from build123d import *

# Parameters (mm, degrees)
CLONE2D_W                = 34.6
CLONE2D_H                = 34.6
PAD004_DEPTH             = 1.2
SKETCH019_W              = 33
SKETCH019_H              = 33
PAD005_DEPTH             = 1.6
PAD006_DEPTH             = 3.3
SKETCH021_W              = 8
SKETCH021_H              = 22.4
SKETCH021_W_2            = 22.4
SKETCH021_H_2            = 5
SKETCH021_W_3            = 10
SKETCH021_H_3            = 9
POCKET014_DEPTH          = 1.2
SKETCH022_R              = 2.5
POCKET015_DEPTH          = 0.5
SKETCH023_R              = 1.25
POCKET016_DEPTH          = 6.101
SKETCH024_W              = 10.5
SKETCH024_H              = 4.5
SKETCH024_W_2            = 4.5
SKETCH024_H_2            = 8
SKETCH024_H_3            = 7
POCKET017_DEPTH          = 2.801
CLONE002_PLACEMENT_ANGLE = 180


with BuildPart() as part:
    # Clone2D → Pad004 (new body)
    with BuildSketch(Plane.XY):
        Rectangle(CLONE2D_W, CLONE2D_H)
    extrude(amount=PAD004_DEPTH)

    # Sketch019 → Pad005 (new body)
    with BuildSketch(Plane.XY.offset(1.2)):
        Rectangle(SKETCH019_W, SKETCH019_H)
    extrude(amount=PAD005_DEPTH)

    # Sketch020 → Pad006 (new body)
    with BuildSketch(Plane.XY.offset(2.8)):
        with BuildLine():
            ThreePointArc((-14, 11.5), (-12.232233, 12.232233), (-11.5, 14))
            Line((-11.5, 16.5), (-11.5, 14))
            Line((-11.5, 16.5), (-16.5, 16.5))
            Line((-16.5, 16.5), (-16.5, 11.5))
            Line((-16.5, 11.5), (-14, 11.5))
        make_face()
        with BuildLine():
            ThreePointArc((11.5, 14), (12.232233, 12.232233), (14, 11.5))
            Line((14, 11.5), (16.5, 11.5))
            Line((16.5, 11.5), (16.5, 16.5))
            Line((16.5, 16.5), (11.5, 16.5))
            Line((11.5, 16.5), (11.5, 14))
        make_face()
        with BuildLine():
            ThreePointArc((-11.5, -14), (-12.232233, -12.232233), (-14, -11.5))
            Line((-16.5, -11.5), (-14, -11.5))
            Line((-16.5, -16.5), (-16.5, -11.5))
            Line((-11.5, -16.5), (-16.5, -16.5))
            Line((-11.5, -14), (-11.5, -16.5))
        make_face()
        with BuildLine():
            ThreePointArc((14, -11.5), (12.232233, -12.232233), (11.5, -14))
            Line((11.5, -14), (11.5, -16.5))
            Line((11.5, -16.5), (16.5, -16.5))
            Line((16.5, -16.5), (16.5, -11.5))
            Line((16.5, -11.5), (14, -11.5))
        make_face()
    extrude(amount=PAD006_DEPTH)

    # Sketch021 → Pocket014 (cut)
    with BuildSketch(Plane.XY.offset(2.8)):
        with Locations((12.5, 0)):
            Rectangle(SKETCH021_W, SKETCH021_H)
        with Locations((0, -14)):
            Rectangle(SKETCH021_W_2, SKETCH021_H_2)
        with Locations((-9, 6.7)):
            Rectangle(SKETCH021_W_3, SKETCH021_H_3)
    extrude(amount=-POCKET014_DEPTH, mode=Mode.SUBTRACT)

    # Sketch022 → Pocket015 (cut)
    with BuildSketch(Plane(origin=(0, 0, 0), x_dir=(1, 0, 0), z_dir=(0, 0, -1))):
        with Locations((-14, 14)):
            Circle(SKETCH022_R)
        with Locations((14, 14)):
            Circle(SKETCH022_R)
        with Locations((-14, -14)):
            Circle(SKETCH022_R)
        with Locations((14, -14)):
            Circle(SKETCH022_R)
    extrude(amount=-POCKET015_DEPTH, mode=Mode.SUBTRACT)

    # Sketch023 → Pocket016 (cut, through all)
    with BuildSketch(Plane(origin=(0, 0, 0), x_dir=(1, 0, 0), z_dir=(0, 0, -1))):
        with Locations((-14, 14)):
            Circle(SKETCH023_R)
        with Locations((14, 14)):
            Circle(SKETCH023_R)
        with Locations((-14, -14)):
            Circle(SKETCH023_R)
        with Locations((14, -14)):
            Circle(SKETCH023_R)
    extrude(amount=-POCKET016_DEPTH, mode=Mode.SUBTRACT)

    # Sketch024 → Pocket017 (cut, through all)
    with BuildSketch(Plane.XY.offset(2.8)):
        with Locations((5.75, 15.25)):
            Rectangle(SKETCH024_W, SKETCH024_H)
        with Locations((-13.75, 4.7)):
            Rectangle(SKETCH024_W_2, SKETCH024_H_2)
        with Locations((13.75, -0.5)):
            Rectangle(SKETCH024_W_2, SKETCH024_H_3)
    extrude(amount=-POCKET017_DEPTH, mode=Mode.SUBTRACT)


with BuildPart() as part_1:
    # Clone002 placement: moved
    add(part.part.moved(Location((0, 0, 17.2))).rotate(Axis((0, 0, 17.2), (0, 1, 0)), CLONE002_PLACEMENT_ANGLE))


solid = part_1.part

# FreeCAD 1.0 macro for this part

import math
import FreeCAD as App
import Part
import Sketcher

V = App.Vector
Q = App.Units.Quantity


def add_polygon(sketch, points):
    """Adds a closed chain of lines whose ends are joined by coincident constraints."""
    first, n = sketch.GeometryCount, len(points)
    for a, b in zip(points, points[1:] + points[:1]):
        sketch.addGeometry(Part.LineSegment(App.Vector(*a, 0), App.Vector(*b, 0)), False)
    for i in range(n):
        sketch.addConstraint(Sketcher.Constraint("Coincident", first + i, 2, first + (i + 1) % n, 1))

doc = App.newDocument("Part")
body = doc.addObject("PartDesign::Body", "Body")

# Sketch on XY plane
sketch1 = body.newObject("Sketcher::SketchObject", "Sketch")
sketch1.AttachmentSupport = (doc.getObject("XY_Plane"), [""])
sketch1.MapMode = "FlatFace"
add_polygon(sketch1, [(-17, 17), (-17, -17), (17, -17), (17, 17)])  # lines 0-3
sketch1.addConstraint([
    Sketcher.Constraint("Vertical", 0),
    Sketcher.Constraint("Horizontal", 1),
    Sketcher.Constraint("Vertical", 2),
    Sketcher.Constraint("Horizontal", 3),
    Sketcher.Constraint("Symmetric", 0, 2, 2, 2, -1, 1),
    Sketcher.Constraint("Equal", 3, 0),
    Sketcher.Constraint("DistanceX", 1, 1, 1, 2, Q("34.6 mm")),
])
pad1 = body.newObject("PartDesign::Pad", "Pad")
pad1.Profile = sketch1
pad1.Length = 1.2

# Sketch on XY plane
sketch2 = body.newObject("Sketcher::SketchObject", "Sketch001")
sketch2.AttachmentSupport = (doc.getObject("XY_Plane"), [""])
sketch2.MapMode = "FlatFace"
sketch2.AttachmentOffset = App.Placement(V(0, 0, 1.2), App.Rotation())
add_polygon(sketch2, [(-16, 16), (-16, -16), (16, -16), (16, 16)])  # lines 0-3
sketch2.addConstraint([
    Sketcher.Constraint("Vertical", 0),
    Sketcher.Constraint("Horizontal", 1),
    Sketcher.Constraint("Vertical", 2),
    Sketcher.Constraint("Horizontal", 3),
    Sketcher.Constraint("Symmetric", 0, 2, 2, 2, -1, 1),
    Sketcher.Constraint("Equal", 3, 0),
    Sketcher.Constraint("DistanceX", 1, 1, 1, 2, Q("33 mm")),
])
pad2 = body.newObject("PartDesign::Pad", "Pad001")
pad2.Profile = sketch2
pad2.Length = 1.6

# Sketch on XY plane
sketch3 = body.newObject("Sketcher::SketchObject", "Sketch002")
sketch3.AttachmentSupport = (doc.getObject("XY_Plane"), [""])
sketch3.MapMode = "FlatFace"
sketch3.AttachmentOffset = App.Placement(V(0, 0, 2.8), App.Rotation())
sketch3.addGeometry([
    Part.ArcOfCircle(Part.Circle(V(-14, 14, 0), V(0, 0, 1), 2.5), math.radians(-90), math.radians(0)),  # 0
    Part.LineSegment(V(-11.5, 14, 0), V(-11.5, 16.5, 0)),  # 1
    Part.LineSegment(V(-11.5, 16.5, 0), V(-16.5, 16.5, 0)),  # 2
    Part.LineSegment(V(-16.5, 16.5, 0), V(-16.5, 11.5, 0)),  # 3
    Part.LineSegment(V(-16.5, 11.5, 0), V(-14, 11.5, 0)),  # 4
    Part.ArcOfCircle(Part.Circle(V(14, 14, 0), V(0, 0, 1), 2.5), math.radians(180), math.radians(270)),  # 5
    Part.LineSegment(V(14, 11.5, 0), V(16.5, 11.5, 0)),  # 6
    Part.LineSegment(V(16.5, 11.5, 0), V(16.5, 16.5, 0)),  # 7
    Part.LineSegment(V(16.5, 16.5, 0), V(11.5, 16.5, 0)),  # 8
    Part.LineSegment(V(11.5, 16.5, 0), V(11.5, 14, 0)),  # 9
    Part.ArcOfCircle(Part.Circle(V(-14, -14, 0), V(0, 0, 1), 2.5), math.radians(0), math.radians(90)),  # 10
    Part.LineSegment(V(-14, -11.5, 0), V(-16.5, -11.5, 0)),  # 11
    Part.LineSegment(V(-16.5, -11.5, 0), V(-16.5, -16.5, 0)),  # 12
    Part.LineSegment(V(-16.5, -16.5, 0), V(-11.5, -16.5, 0)),  # 13
    Part.LineSegment(V(-11.5, -16.5, 0), V(-11.5, -14, 0)),  # 14
    Part.ArcOfCircle(Part.Circle(V(14, -14, 0), V(0, 0, 1), 2.5), math.radians(90), math.radians(180)),  # 15
    Part.LineSegment(V(11.5, -14, 0), V(11.5, -16.5, 0)),  # 16
    Part.LineSegment(V(11.5, -16.5, 0), V(16.5, -16.5, 0)),  # 17
    Part.LineSegment(V(16.5, -16.5, 0), V(16.5, -11.5, 0)),  # 18
    Part.LineSegment(V(16.5, -11.5, 0), V(14, -11.5, 0)),  # 19
], False)
sketch3.addConstraint([
    Sketcher.Constraint("Tangent", 0, 2, 1, 1),
    Sketcher.Constraint("Coincident", 1, 2, 2, 1),
    Sketcher.Constraint("Coincident", 2, 2, 3, 1),
    Sketcher.Constraint("Coincident", 3, 2, 4, 1),
    Sketcher.Constraint("Tangent", 4, 2, 0, 1),
    Sketcher.Constraint("Tangent", 5, 2, 6, 1),
    Sketcher.Constraint("Coincident", 6, 2, 7, 1),
    Sketcher.Constraint("Coincident", 7, 2, 8, 1),
    Sketcher.Constraint("Coincident", 8, 2, 9, 1),
    Sketcher.Constraint("Tangent", 9, 2, 5, 1),
    Sketcher.Constraint("Tangent", 10, 2, 11, 1),
    Sketcher.Constraint("Coincident", 11, 2, 12, 1),
    Sketcher.Constraint("Coincident", 12, 2, 13, 1),
    Sketcher.Constraint("Coincident", 13, 2, 14, 1),
    Sketcher.Constraint("Tangent", 14, 2, 10, 1),
    Sketcher.Constraint("Tangent", 15, 2, 16, 1),
    Sketcher.Constraint("Coincident", 16, 2, 17, 1),
    Sketcher.Constraint("Coincident", 17, 2, 18, 1),
    Sketcher.Constraint("Coincident", 18, 2, 19, 1),
    Sketcher.Constraint("Tangent", 19, 2, 15, 1),
    Sketcher.Constraint("Vertical", 1),
    Sketcher.Constraint("Horizontal", 2),
    Sketcher.Constraint("Vertical", 3),
    Sketcher.Constraint("Horizontal", 4),
    Sketcher.Constraint("Horizontal", 6),
    Sketcher.Constraint("Vertical", 7),
    Sketcher.Constraint("Horizontal", 8),
    Sketcher.Constraint("Vertical", 9),
    Sketcher.Constraint("Horizontal", 11),
    Sketcher.Constraint("Vertical", 12),
    Sketcher.Constraint("Horizontal", 13),
    Sketcher.Constraint("Vertical", 14),
    Sketcher.Constraint("Vertical", 16),
    Sketcher.Constraint("Horizontal", 17),
    Sketcher.Constraint("Vertical", 18),
    Sketcher.Constraint("Horizontal", 19),
    Sketcher.Constraint("Equal", 0, 5),
    Sketcher.Constraint("Equal", 5, 10),
    Sketcher.Constraint("Equal", 10, 15),
    Sketcher.Constraint("Symmetric", 5, 3, 10, 3, -1, 1),
    Sketcher.Constraint("Symmetric", 0, 3, 15, 3, -1, 1),
    Sketcher.Constraint("Symmetric", 7, 2, 12, 2, -1, 1),
    Sketcher.Constraint("Symmetric", 2, 2, 17, 2, -1, 1),
    Sketcher.Constraint("Symmetric", 0, 3, 5, 3, -2),
    Sketcher.Constraint("Symmetric", 2, 2, 7, 2, -2),
    Sketcher.Constraint("Equal", 19, 1),
    Sketcher.Constraint("Radius", 0, Q("2.5 mm")),
    Sketcher.Constraint("DistanceX", 2, 2, 2, 1, Q("5 mm")),
    Sketcher.Constraint("DistanceX", 0, 3, -1, 1, Q("14 mm")),
    Sketcher.Constraint("DistanceY", -1, 1, 0, 3, Q("14 mm")),
])
pad3 = body.newObject("PartDesign::Pad", "Pad002")
pad3.Profile = sketch3
pad3.Length = 3.3

# Sketch on XY plane
sketch4 = body.newObject("Sketcher::SketchObject", "Sketch003")
sketch4.AttachmentSupport = (doc.getObject("XY_Plane"), [""])
sketch4.MapMode = "FlatFace"
sketch4.AttachmentOffset = App.Placement(V(0, 0, 2.8), App.Rotation())
add_polygon(sketch4, [(8, 11), (8, -11), (16, -11), (16, 11)])  # lines 0-3
add_polygon(sketch4, [(-11, -12), (-11, -16), (11, -16), (11, -12)])  # lines 4-7
add_polygon(sketch4, [(-14, 11), (-14, 2), (-4, 2), (-4, 11)])  # lines 8-11
sketch4.addConstraint([
    Sketcher.Constraint("Vertical", 0),
    Sketcher.Constraint("Horizontal", 1),
    Sketcher.Constraint("Vertical", 2),
    Sketcher.Constraint("Horizontal", 3),
    Sketcher.Constraint("Vertical", 4),
    Sketcher.Constraint("Horizontal", 5),
    Sketcher.Constraint("Vertical", 6),
    Sketcher.Constraint("Horizontal", 7),
    Sketcher.Constraint("Vertical", 8),
    Sketcher.Constraint("Horizontal", 9),
    Sketcher.Constraint("Vertical", 10),
    Sketcher.Constraint("Horizontal", 11),
    Sketcher.Constraint("Horizontal", 3, 2, 10, 2),
    Sketcher.Constraint("Equal", 7, 0),
    Sketcher.Constraint("DistanceX", 1, 1, 1, 2, Q("8 mm")),
    Sketcher.Constraint("DistanceX", 9, 1, 9, 2, Q("10 mm")),
    Sketcher.Constraint("DistanceY", 4, 2, 4, 1, Q("5 mm")),
    Sketcher.Constraint("DistanceY", 8, 2, 8, 1, Q("9 mm")),
    Sketcher.Constraint("DistanceX", 5, 1, 5, 2, Q("22.4 mm")),
    Sketcher.Constraint("DistanceX", 8, 2, -1, 1, Q("14 mm")),
    Sketcher.Constraint("DistanceX", -1, 1, 0, 2, Q("8.5 mm")),
    Sketcher.Constraint("DistanceY", 0, 2, -1, 1, Q("11.2 mm")),
    Sketcher.Constraint("DistanceX", 4, 2, -1, 1, Q("11.2 mm")),
    Sketcher.Constraint("DistanceY", 4, 2, -1, 1, Q("16.5 mm")),
])
pocket1 = body.newObject("PartDesign::Pocket", "Pocket")
pocket1.Profile = sketch4
pocket1.Length = 1.2

# Sketch on XY plane
sketch5 = body.newObject("Sketcher::SketchObject", "Sketch004")
sketch5.AttachmentSupport = (doc.getObject("XY_Plane"), [""])
sketch5.MapMode = "FlatFace"
sketch5.addGeometry([
    Part.Circle(V(-14, -14, 0), V(0, 0, 1), 2.5),
    Part.Circle(V(14, -14, 0), V(0, 0, 1), 2.5),
    Part.Circle(V(-14, 14, 0), V(0, 0, 1), 2.5),
    Part.Circle(V(14, 14, 0), V(0, 0, 1), 2.5),
], False)
sketch5.addConstraint([
    Sketcher.Constraint("Equal", 0, 1),
    Sketcher.Constraint("Equal", 1, 2),
    Sketcher.Constraint("Equal", 2, 3),
    Sketcher.Constraint("Symmetric", 1, 3, 2, 3, -1, 1),
    Sketcher.Constraint("Symmetric", 0, 3, 3, 3, -1, 1),
    Sketcher.Constraint("Symmetric", 0, 3, 1, 3, -2),
    Sketcher.Constraint("Diameter", 0, Q("5 mm")),
    Sketcher.Constraint("DistanceX", 0, 3, -1, 1, Q("14 mm")),
    Sketcher.Constraint("DistanceY", 0, 3, -1, 1, Q("14 mm")),
])
pocket2 = body.newObject("PartDesign::Pocket", "Pocket001")
pocket2.Profile = sketch5
pocket2.Length = 0.5
pocket2.Reversed = True

# Sketch on XY plane
sketch6 = body.newObject("Sketcher::SketchObject", "Sketch005")
sketch6.AttachmentSupport = (doc.getObject("XY_Plane"), [""])
sketch6.MapMode = "FlatFace"
sketch6.addGeometry([
    Part.Circle(V(-14, -14, 0), V(0, 0, 1), 1.2),
    Part.Circle(V(14, -14, 0), V(0, 0, 1), 1.2),
    Part.Circle(V(-14, 14, 0), V(0, 0, 1), 1.2),
    Part.Circle(V(14, 14, 0), V(0, 0, 1), 1.2),
], False)
sketch6.addConstraint([
    Sketcher.Constraint("Equal", 0, 1),
    Sketcher.Constraint("Equal", 1, 2),
    Sketcher.Constraint("Equal", 2, 3),
    Sketcher.Constraint("Symmetric", 1, 3, 2, 3, -1, 1),
    Sketcher.Constraint("Symmetric", 0, 3, 3, 3, -1, 1),
    Sketcher.Constraint("Symmetric", 0, 3, 1, 3, -2),
    Sketcher.Constraint("Diameter", 0, Q("2.5 mm")),
    Sketcher.Constraint("DistanceX", 0, 3, -1, 1, Q("14 mm")),
    Sketcher.Constraint("DistanceY", 0, 3, -1, 1, Q("14 mm")),
])
pocket3 = body.newObject("PartDesign::Pocket", "Pocket002")
pocket3.Profile = sketch6
pocket3.Type = "ThroughAll"
pocket3.Reversed = True

# Sketch on XY plane
sketch7 = body.newObject("Sketcher::SketchObject", "Sketch006")
sketch7.AttachmentSupport = (doc.getObject("XY_Plane"), [""])
sketch7.MapMode = "FlatFace"
sketch7.AttachmentOffset = App.Placement(V(0, 0, 2.8), App.Rotation())
add_polygon(sketch7, [(0.5, 17.5), (0.5, 13), (11, 13), (11, 17.5)])  # lines 0-3
add_polygon(sketch7, [(-16, 8.7), (-16, 0.7), (-11.5, 0.7), (-11.5, 8.7)])  # lines 4-7
add_polygon(sketch7, [(11.5, 3), (11.5, -4), (16, -4), (16, 3)])  # lines 8-11
sketch7.addConstraint([
    Sketcher.Constraint("Vertical", 0),
    Sketcher.Constraint("Horizontal", 1),
    Sketcher.Constraint("Vertical", 2),
    Sketcher.Constraint("Horizontal", 3),
    Sketcher.Constraint("Vertical", 4),
    Sketcher.Constraint("Horizontal", 5),
    Sketcher.Constraint("Vertical", 6),
    Sketcher.Constraint("Horizontal", 7),
    Sketcher.Constraint("Vertical", 8),
    Sketcher.Constraint("Horizontal", 9),
    Sketcher.Constraint("Vertical", 10),
    Sketcher.Constraint("Horizontal", 11),
    Sketcher.Constraint("Equal", 7, 9),
    Sketcher.Constraint("Equal", 11, 0),
    Sketcher.Constraint("DistanceY", 4, 2, 4, 1, Q("8 mm")),
    Sketcher.Constraint("DistanceY", 8, 2, 8, 1, Q("7 mm")),
    Sketcher.Constraint("DistanceX", 1, 1, 1, 2, Q("10.5 mm")),
    Sketcher.Constraint("DistanceX", 5, 1, 5, 2, Q("4.5 mm")),
    Sketcher.Constraint("DistanceY", -1, 1, 0, 2, Q("13 mm")),
    Sketcher.Constraint("DistanceX", -1, 1, 1, 2, Q("11 mm")),
    Sketcher.Constraint("DistanceX", 4, 2, -1, 1, Q("16 mm")),
    Sketcher.Constraint("DistanceY", 8, 2, -1, 1, Q("4 mm")),
    Sketcher.Constraint("DistanceX", -1, 1, 9, 2, Q("16 mm")),
    Sketcher.Constraint("DistanceY", -1, 1, 4, 2, Q("0.7 mm")),
])
pocket4 = body.newObject("PartDesign::Pocket", "Pocket003")
pocket4.Profile = sketch7
pocket4.Type = "ThroughAll"
body2 = doc.addObject("PartDesign::Body", "Body001")
doc.recompute()

body.Placement = App.Placement(V(0, 0, 17.2), App.Rotation(V(0, 1, 0), 180))
boolean = body2.newObject("PartDesign::Boolean", "Boolean")
boolean.Type = "Fuse"
boolean.addObjects([body])

doc.recompute()
